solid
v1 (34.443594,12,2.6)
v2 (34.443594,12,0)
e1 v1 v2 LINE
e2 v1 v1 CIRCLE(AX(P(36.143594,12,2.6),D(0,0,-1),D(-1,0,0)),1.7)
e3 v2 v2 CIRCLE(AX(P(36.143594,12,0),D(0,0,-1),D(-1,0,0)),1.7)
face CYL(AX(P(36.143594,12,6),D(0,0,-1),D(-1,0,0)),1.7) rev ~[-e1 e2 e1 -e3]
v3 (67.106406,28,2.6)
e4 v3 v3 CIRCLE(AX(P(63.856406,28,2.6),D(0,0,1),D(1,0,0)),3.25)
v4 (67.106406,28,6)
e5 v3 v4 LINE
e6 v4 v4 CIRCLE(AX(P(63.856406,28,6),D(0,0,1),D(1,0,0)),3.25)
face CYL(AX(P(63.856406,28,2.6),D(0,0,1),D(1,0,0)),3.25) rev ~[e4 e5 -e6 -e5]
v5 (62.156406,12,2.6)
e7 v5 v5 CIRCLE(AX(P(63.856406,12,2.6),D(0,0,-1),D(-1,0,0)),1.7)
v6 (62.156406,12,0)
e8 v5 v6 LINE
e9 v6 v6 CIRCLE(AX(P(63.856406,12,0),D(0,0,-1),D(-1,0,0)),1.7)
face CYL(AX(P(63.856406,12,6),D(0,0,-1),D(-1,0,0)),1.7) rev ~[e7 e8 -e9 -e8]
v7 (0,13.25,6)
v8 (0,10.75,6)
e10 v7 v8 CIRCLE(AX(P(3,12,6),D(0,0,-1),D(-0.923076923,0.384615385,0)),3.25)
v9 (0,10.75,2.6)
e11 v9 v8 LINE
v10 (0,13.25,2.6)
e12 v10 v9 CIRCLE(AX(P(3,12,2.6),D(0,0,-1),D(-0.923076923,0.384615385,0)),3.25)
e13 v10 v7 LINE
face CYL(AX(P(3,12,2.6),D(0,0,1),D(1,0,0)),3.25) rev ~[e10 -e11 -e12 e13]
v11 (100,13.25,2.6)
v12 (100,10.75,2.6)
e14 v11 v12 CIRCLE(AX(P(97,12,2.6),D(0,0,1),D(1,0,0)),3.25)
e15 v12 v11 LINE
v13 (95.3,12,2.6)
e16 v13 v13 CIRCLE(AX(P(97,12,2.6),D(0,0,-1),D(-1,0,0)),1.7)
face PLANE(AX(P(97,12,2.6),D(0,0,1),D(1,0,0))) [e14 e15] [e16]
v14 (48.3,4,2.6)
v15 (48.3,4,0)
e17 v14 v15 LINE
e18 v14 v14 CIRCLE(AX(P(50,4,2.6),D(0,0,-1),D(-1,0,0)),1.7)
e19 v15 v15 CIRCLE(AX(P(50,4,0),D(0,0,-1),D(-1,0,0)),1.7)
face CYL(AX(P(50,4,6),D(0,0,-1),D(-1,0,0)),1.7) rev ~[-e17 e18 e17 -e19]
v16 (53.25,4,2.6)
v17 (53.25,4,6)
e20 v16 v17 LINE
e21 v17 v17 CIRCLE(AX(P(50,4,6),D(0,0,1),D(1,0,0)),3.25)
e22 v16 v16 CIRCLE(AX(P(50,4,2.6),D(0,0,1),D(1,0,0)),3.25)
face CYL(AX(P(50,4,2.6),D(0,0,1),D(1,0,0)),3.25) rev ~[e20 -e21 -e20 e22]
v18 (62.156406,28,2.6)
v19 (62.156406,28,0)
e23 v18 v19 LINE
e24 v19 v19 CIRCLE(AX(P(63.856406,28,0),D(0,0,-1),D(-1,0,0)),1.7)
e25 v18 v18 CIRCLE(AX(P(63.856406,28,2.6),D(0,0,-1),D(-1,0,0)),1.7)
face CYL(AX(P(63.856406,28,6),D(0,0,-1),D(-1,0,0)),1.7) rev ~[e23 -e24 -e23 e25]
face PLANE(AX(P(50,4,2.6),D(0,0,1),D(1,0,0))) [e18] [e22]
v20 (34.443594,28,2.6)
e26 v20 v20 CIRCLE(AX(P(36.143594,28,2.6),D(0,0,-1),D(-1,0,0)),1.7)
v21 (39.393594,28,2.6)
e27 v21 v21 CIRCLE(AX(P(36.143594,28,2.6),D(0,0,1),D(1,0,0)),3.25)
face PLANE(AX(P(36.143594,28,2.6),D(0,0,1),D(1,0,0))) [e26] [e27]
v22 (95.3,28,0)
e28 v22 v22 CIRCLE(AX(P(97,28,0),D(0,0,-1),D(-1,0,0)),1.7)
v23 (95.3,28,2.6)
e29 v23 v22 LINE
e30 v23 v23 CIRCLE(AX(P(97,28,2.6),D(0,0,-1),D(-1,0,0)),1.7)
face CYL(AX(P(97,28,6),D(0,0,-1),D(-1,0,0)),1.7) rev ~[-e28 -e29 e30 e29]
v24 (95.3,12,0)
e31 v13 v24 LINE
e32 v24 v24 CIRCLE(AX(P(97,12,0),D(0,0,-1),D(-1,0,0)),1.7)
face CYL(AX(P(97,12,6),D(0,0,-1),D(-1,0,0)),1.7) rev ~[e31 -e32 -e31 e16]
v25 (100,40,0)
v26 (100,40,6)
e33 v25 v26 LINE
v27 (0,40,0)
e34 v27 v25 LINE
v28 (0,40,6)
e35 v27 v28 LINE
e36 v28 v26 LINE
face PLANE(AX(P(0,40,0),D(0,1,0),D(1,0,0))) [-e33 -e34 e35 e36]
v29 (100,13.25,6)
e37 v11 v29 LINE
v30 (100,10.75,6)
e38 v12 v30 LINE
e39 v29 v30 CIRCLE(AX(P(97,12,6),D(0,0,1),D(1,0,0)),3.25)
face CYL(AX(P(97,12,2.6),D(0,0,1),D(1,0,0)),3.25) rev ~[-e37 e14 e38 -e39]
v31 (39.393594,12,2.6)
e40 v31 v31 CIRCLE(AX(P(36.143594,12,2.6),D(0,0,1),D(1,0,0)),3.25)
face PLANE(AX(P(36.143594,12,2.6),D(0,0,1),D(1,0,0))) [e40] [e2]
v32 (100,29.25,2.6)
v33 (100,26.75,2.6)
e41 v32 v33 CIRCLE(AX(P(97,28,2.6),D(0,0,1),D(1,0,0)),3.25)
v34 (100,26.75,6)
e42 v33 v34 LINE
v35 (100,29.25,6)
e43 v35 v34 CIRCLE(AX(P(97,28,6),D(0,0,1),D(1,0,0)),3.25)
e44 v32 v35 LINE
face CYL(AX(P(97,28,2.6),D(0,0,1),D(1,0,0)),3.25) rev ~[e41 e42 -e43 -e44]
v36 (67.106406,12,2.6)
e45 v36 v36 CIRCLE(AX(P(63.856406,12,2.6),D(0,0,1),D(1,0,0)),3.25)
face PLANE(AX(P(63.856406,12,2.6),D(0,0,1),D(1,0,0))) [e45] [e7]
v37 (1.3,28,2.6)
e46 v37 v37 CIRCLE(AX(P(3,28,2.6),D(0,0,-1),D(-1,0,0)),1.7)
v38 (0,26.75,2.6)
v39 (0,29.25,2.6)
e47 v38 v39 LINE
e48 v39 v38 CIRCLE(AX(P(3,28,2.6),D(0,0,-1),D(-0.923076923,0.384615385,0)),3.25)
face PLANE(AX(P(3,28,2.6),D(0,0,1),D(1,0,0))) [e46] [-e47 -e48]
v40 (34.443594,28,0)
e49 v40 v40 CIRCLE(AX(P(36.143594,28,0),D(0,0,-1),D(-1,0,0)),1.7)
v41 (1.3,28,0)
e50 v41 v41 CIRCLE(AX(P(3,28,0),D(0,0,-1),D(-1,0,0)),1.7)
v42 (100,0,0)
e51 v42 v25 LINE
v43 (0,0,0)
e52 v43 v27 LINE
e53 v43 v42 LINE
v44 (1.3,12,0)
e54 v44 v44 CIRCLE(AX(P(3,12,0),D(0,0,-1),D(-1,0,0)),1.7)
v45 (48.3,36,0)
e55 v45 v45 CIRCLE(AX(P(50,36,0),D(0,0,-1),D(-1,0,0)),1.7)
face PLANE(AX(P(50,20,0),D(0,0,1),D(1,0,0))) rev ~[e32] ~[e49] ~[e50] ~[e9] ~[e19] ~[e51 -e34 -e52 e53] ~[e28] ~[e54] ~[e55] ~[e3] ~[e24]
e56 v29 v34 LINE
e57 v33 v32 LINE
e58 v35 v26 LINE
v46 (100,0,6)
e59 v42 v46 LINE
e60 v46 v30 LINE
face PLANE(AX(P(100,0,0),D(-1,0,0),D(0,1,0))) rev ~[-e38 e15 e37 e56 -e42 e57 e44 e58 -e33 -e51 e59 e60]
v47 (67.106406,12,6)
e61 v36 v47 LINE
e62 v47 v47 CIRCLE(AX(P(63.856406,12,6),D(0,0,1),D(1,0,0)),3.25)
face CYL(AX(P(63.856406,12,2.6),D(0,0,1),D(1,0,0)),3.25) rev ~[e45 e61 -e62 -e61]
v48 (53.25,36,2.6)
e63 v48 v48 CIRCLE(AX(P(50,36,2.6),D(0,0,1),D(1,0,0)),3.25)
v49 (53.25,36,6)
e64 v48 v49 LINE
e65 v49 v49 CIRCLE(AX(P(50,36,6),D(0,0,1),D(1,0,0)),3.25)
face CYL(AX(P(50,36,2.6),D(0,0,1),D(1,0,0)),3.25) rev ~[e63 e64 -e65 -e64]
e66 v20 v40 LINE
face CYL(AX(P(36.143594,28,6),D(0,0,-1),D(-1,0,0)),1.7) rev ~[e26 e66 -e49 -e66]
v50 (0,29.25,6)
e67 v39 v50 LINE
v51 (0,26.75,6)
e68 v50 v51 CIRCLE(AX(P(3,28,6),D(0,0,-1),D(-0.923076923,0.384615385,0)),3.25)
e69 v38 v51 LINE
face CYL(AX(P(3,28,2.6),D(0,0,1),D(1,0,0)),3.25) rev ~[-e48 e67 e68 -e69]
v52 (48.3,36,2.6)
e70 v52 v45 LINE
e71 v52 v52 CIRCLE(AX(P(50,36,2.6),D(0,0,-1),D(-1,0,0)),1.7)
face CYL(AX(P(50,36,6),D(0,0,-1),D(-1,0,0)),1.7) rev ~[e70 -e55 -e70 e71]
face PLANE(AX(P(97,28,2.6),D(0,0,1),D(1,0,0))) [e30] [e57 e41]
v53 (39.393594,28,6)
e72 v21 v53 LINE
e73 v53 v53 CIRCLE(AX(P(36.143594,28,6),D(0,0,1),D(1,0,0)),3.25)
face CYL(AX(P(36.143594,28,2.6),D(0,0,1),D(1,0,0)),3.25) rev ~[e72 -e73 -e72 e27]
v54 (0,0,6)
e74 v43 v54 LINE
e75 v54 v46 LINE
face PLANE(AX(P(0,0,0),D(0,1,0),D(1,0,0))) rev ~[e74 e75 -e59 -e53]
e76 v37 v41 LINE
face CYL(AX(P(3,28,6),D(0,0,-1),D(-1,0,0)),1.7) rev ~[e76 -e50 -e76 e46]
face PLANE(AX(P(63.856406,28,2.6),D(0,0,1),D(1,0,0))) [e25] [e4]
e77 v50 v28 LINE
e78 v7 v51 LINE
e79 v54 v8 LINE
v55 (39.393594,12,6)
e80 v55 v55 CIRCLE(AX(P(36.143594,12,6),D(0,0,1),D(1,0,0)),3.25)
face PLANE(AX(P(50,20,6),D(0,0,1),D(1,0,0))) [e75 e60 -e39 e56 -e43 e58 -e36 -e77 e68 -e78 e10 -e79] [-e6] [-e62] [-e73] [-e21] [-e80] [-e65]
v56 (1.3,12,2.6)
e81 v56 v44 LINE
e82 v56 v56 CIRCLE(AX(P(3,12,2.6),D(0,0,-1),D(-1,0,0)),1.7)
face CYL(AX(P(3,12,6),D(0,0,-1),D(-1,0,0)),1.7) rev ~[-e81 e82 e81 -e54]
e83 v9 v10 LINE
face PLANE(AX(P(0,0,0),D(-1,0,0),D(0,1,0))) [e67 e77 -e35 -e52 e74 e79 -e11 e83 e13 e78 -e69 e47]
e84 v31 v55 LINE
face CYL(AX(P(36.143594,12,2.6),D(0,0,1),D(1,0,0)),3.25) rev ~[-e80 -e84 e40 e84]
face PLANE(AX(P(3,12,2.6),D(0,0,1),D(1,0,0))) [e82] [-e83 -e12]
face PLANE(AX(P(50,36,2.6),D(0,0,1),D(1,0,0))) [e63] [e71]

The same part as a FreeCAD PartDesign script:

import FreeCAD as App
import Part
import Sketcher

V = App.Vector


def add_polygon(sketch, points):
    """Adds a closed chain of lines whose ends are joined by coincident constraints."""
    first, n = sketch.GeometryCount, len(points)
    for a, b in zip(points, points[1:] + points[:1]):
        sketch.addGeometry(Part.LineSegment(App.Vector(*a, 0), App.Vector(*b, 0)), False)
    for i in range(n):
        sketch.addConstraint(Sketcher.Constraint("Coincident", first + i, 2, first + (i + 1) % n, 1))

doc = App.newDocument("Part")
body = doc.addObject("PartDesign::Body", "Body")

# Sketch on XY plane
sketch1 = doc.addObject("Sketcher::SketchObject", "Sketch")
body.addObject(sketch1)
sketch1.AttachmentSupport = (doc.XY_Plane, [""])
sketch1.MapMode = "FlatFace"
add_polygon(sketch1, [(0, 40), (0, 0), (100, 0), (100, 40)])  # lines 0-3
sketch1.addConstraint(Sketcher.Constraint("Vertical", 0))
sketch1.addConstraint(Sketcher.Constraint("Horizontal", 1))
sketch1.addConstraint(Sketcher.Constraint("Vertical", 2))
sketch1.addConstraint(Sketcher.Constraint("Horizontal", 3))
sketch1.addConstraint(Sketcher.Constraint("Coincident", 0, 2, -1, 1))
sketch1.addConstraint(Sketcher.Constraint("DistanceX", 1, 1, 1, 2, 100.0))
sketch1.addConstraint(Sketcher.Constraint("DistanceY", 0, 2, 0, 1, 40.0))
pad1 = doc.addObject("PartDesign::Pad", "Pad")
body.addObject(pad1)
pad1.Profile = sketch1
pad1.Length = 6

# Sketch on XY plane
sketch2 = doc.addObject("Sketcher::SketchObject", "Sketch001")
body.addObject(sketch2)
sketch2.AttachmentSupport = (doc.XY_Plane, [""])
sketch2.MapMode = "FlatFace"
sketch2.AttachmentOffset = App.Placement(V(0, 0, 6), App.Rotation())
sketch2.addGeometry(Part.Circle(V(3, 28, 0), V(0, 0, 1), 1.7), False)
sketch2.addGeometry(Part.Circle(V(97, 28, 0), V(0, 0, 1), 1.7), False)
sketch2.addGeometry(Part.Circle(V(97, 12, 0), V(0, 0, 1), 1.7), False)
sketch2.addGeometry(Part.Circle(V(3, 12, 0), V(0, 0, 1), 1.7), False)
sketch2.addConstraint(Sketcher.Constraint("Equal", 0, 1))
sketch2.addConstraint(Sketcher.Constraint("Equal", 1, 2))
sketch2.addConstraint(Sketcher.Constraint("Equal", 2, 3))
sketch2.addConstraint(Sketcher.Constraint("Horizontal", 0, 3, 1, 3))
sketch2.addConstraint(Sketcher.Constraint("Horizontal", 2, 3, 3, 3))
sketch2.addConstraint(Sketcher.Constraint("Vertical", 1, 3, 2, 3))
sketch2.addConstraint(Sketcher.Constraint("Vertical", 0, 3, 3, 3))
sketch2.addConstraint(Sketcher.Constraint("Diameter", 0, 3.4))
sketch2.addConstraint(Sketcher.Constraint("DistanceX", -1, 1, 0, 3, 3.0))
sketch2.addConstraint(Sketcher.Constraint("DistanceY", -1, 1, 0, 3, 28.0))
sketch2.addConstraint(Sketcher.Constraint("DistanceX", -1, 1, 1, 3, 97.0))
sketch2.addConstraint(Sketcher.Constraint("DistanceY", -1, 1, 2, 3, 12.0))
doc.recompute()
hole = doc.addObject("PartDesign::Hole", "Hole")
body.addObject(hole)
hole.Profile = sketch2
hole.ThreadType = "None"
hole.Diameter = 3.4
hole.DepthType = "ThroughAll"
hole.HoleCutType = "Counterbore"
hole.HoleCutDiameter = 6.5
hole.HoleCutDepth = 3.4

# Sketch on XY plane
sketch3 = doc.addObject("Sketcher::SketchObject", "Sketch002")
body.addObject(sketch3)
sketch3.AttachmentSupport = (doc.XY_Plane, [""])
sketch3.MapMode = "FlatFace"
sketch3.AttachmentOffset = App.Placement(V(0, 0, 6), App.Rotation())
sketch3.addGeometry(Part.Circle(V(36.143594, 28, 0), V(0, 0, 1), 1.7), False)
sketch3.addGeometry(Part.Circle(V(50, 36, 0), V(0, 0, 1), 1.7), False)
sketch3.addGeometry(Part.Circle(V(63.856406, 28, 0), V(0, 0, 1), 1.7), False)
sketch3.addGeometry(Part.Circle(V(63.856406, 12, 0), V(0, 0, 1), 1.7), False)
sketch3.addGeometry(Part.Circle(V(50, 4, 0), V(0, 0, 1), 1.7), False)
sketch3.addGeometry(Part.Circle(V(36.143594, 12, 0), V(0, 0, 1), 1.7), False)
sketch3.addConstraint(Sketcher.Constraint("Equal", 0, 1))
sketch3.addConstraint(Sketcher.Constraint("Equal", 1, 2))
sketch3.addConstraint(Sketcher.Constraint("Equal", 2, 3))
sketch3.addConstraint(Sketcher.Constraint("Equal", 3, 4))
sketch3.addConstraint(Sketcher.Constraint("Equal", 4, 5))
sketch3.addConstraint(Sketcher.Constraint("Horizontal", 0, 3, 2, 3))
sketch3.addConstraint(Sketcher.Constraint("Horizontal", 3, 3, 5, 3))
sketch3.addConstraint(Sketcher.Constraint("Vertical", 2, 3, 3, 3))
sketch3.addConstraint(Sketcher.Constraint("Vertical", 1, 3, 4, 3))
sketch3.addConstraint(Sketcher.Constraint("Vertical", 0, 3, 5, 3))
sketch3.addConstraint(Sketcher.Constraint("Diameter", 0, 3.4))
sketch3.addConstraint(Sketcher.Constraint("DistanceY", -1, 1, 0, 3, 28.0))
sketch3.addConstraint(Sketcher.Constraint("DistanceX", -1, 1, 1, 3, 50.0))
sketch3.addConstraint(Sketcher.Constraint("DistanceY", -1, 1, 1, 3, 36.0))
sketch3.addConstraint(Sketcher.Constraint("DistanceY", -1, 1, 3, 3, 12.0))
sketch3.addConstraint(Sketcher.Constraint("DistanceY", -1, 1, 4, 3, 4.0))
sketch3.addConstraint(Sketcher.Constraint("DistanceX", -1, 1, 0, 3, 36.143594))
sketch3.addConstraint(Sketcher.Constraint("DistanceX", -1, 1, 2, 3, 63.856406))
doc.recompute()
hole2 = doc.addObject("PartDesign::Hole", "Hole001")
body.addObject(hole2)
hole2.Profile = sketch3
hole2.ThreadType = "None"
hole2.Diameter = 3.4
hole2.DepthType = "ThroughAll"
hole2.HoleCutType = "Counterbore"
hole2.HoleCutDiameter = 6.5
hole2.HoleCutDepth = 3.4

doc.recompute()
